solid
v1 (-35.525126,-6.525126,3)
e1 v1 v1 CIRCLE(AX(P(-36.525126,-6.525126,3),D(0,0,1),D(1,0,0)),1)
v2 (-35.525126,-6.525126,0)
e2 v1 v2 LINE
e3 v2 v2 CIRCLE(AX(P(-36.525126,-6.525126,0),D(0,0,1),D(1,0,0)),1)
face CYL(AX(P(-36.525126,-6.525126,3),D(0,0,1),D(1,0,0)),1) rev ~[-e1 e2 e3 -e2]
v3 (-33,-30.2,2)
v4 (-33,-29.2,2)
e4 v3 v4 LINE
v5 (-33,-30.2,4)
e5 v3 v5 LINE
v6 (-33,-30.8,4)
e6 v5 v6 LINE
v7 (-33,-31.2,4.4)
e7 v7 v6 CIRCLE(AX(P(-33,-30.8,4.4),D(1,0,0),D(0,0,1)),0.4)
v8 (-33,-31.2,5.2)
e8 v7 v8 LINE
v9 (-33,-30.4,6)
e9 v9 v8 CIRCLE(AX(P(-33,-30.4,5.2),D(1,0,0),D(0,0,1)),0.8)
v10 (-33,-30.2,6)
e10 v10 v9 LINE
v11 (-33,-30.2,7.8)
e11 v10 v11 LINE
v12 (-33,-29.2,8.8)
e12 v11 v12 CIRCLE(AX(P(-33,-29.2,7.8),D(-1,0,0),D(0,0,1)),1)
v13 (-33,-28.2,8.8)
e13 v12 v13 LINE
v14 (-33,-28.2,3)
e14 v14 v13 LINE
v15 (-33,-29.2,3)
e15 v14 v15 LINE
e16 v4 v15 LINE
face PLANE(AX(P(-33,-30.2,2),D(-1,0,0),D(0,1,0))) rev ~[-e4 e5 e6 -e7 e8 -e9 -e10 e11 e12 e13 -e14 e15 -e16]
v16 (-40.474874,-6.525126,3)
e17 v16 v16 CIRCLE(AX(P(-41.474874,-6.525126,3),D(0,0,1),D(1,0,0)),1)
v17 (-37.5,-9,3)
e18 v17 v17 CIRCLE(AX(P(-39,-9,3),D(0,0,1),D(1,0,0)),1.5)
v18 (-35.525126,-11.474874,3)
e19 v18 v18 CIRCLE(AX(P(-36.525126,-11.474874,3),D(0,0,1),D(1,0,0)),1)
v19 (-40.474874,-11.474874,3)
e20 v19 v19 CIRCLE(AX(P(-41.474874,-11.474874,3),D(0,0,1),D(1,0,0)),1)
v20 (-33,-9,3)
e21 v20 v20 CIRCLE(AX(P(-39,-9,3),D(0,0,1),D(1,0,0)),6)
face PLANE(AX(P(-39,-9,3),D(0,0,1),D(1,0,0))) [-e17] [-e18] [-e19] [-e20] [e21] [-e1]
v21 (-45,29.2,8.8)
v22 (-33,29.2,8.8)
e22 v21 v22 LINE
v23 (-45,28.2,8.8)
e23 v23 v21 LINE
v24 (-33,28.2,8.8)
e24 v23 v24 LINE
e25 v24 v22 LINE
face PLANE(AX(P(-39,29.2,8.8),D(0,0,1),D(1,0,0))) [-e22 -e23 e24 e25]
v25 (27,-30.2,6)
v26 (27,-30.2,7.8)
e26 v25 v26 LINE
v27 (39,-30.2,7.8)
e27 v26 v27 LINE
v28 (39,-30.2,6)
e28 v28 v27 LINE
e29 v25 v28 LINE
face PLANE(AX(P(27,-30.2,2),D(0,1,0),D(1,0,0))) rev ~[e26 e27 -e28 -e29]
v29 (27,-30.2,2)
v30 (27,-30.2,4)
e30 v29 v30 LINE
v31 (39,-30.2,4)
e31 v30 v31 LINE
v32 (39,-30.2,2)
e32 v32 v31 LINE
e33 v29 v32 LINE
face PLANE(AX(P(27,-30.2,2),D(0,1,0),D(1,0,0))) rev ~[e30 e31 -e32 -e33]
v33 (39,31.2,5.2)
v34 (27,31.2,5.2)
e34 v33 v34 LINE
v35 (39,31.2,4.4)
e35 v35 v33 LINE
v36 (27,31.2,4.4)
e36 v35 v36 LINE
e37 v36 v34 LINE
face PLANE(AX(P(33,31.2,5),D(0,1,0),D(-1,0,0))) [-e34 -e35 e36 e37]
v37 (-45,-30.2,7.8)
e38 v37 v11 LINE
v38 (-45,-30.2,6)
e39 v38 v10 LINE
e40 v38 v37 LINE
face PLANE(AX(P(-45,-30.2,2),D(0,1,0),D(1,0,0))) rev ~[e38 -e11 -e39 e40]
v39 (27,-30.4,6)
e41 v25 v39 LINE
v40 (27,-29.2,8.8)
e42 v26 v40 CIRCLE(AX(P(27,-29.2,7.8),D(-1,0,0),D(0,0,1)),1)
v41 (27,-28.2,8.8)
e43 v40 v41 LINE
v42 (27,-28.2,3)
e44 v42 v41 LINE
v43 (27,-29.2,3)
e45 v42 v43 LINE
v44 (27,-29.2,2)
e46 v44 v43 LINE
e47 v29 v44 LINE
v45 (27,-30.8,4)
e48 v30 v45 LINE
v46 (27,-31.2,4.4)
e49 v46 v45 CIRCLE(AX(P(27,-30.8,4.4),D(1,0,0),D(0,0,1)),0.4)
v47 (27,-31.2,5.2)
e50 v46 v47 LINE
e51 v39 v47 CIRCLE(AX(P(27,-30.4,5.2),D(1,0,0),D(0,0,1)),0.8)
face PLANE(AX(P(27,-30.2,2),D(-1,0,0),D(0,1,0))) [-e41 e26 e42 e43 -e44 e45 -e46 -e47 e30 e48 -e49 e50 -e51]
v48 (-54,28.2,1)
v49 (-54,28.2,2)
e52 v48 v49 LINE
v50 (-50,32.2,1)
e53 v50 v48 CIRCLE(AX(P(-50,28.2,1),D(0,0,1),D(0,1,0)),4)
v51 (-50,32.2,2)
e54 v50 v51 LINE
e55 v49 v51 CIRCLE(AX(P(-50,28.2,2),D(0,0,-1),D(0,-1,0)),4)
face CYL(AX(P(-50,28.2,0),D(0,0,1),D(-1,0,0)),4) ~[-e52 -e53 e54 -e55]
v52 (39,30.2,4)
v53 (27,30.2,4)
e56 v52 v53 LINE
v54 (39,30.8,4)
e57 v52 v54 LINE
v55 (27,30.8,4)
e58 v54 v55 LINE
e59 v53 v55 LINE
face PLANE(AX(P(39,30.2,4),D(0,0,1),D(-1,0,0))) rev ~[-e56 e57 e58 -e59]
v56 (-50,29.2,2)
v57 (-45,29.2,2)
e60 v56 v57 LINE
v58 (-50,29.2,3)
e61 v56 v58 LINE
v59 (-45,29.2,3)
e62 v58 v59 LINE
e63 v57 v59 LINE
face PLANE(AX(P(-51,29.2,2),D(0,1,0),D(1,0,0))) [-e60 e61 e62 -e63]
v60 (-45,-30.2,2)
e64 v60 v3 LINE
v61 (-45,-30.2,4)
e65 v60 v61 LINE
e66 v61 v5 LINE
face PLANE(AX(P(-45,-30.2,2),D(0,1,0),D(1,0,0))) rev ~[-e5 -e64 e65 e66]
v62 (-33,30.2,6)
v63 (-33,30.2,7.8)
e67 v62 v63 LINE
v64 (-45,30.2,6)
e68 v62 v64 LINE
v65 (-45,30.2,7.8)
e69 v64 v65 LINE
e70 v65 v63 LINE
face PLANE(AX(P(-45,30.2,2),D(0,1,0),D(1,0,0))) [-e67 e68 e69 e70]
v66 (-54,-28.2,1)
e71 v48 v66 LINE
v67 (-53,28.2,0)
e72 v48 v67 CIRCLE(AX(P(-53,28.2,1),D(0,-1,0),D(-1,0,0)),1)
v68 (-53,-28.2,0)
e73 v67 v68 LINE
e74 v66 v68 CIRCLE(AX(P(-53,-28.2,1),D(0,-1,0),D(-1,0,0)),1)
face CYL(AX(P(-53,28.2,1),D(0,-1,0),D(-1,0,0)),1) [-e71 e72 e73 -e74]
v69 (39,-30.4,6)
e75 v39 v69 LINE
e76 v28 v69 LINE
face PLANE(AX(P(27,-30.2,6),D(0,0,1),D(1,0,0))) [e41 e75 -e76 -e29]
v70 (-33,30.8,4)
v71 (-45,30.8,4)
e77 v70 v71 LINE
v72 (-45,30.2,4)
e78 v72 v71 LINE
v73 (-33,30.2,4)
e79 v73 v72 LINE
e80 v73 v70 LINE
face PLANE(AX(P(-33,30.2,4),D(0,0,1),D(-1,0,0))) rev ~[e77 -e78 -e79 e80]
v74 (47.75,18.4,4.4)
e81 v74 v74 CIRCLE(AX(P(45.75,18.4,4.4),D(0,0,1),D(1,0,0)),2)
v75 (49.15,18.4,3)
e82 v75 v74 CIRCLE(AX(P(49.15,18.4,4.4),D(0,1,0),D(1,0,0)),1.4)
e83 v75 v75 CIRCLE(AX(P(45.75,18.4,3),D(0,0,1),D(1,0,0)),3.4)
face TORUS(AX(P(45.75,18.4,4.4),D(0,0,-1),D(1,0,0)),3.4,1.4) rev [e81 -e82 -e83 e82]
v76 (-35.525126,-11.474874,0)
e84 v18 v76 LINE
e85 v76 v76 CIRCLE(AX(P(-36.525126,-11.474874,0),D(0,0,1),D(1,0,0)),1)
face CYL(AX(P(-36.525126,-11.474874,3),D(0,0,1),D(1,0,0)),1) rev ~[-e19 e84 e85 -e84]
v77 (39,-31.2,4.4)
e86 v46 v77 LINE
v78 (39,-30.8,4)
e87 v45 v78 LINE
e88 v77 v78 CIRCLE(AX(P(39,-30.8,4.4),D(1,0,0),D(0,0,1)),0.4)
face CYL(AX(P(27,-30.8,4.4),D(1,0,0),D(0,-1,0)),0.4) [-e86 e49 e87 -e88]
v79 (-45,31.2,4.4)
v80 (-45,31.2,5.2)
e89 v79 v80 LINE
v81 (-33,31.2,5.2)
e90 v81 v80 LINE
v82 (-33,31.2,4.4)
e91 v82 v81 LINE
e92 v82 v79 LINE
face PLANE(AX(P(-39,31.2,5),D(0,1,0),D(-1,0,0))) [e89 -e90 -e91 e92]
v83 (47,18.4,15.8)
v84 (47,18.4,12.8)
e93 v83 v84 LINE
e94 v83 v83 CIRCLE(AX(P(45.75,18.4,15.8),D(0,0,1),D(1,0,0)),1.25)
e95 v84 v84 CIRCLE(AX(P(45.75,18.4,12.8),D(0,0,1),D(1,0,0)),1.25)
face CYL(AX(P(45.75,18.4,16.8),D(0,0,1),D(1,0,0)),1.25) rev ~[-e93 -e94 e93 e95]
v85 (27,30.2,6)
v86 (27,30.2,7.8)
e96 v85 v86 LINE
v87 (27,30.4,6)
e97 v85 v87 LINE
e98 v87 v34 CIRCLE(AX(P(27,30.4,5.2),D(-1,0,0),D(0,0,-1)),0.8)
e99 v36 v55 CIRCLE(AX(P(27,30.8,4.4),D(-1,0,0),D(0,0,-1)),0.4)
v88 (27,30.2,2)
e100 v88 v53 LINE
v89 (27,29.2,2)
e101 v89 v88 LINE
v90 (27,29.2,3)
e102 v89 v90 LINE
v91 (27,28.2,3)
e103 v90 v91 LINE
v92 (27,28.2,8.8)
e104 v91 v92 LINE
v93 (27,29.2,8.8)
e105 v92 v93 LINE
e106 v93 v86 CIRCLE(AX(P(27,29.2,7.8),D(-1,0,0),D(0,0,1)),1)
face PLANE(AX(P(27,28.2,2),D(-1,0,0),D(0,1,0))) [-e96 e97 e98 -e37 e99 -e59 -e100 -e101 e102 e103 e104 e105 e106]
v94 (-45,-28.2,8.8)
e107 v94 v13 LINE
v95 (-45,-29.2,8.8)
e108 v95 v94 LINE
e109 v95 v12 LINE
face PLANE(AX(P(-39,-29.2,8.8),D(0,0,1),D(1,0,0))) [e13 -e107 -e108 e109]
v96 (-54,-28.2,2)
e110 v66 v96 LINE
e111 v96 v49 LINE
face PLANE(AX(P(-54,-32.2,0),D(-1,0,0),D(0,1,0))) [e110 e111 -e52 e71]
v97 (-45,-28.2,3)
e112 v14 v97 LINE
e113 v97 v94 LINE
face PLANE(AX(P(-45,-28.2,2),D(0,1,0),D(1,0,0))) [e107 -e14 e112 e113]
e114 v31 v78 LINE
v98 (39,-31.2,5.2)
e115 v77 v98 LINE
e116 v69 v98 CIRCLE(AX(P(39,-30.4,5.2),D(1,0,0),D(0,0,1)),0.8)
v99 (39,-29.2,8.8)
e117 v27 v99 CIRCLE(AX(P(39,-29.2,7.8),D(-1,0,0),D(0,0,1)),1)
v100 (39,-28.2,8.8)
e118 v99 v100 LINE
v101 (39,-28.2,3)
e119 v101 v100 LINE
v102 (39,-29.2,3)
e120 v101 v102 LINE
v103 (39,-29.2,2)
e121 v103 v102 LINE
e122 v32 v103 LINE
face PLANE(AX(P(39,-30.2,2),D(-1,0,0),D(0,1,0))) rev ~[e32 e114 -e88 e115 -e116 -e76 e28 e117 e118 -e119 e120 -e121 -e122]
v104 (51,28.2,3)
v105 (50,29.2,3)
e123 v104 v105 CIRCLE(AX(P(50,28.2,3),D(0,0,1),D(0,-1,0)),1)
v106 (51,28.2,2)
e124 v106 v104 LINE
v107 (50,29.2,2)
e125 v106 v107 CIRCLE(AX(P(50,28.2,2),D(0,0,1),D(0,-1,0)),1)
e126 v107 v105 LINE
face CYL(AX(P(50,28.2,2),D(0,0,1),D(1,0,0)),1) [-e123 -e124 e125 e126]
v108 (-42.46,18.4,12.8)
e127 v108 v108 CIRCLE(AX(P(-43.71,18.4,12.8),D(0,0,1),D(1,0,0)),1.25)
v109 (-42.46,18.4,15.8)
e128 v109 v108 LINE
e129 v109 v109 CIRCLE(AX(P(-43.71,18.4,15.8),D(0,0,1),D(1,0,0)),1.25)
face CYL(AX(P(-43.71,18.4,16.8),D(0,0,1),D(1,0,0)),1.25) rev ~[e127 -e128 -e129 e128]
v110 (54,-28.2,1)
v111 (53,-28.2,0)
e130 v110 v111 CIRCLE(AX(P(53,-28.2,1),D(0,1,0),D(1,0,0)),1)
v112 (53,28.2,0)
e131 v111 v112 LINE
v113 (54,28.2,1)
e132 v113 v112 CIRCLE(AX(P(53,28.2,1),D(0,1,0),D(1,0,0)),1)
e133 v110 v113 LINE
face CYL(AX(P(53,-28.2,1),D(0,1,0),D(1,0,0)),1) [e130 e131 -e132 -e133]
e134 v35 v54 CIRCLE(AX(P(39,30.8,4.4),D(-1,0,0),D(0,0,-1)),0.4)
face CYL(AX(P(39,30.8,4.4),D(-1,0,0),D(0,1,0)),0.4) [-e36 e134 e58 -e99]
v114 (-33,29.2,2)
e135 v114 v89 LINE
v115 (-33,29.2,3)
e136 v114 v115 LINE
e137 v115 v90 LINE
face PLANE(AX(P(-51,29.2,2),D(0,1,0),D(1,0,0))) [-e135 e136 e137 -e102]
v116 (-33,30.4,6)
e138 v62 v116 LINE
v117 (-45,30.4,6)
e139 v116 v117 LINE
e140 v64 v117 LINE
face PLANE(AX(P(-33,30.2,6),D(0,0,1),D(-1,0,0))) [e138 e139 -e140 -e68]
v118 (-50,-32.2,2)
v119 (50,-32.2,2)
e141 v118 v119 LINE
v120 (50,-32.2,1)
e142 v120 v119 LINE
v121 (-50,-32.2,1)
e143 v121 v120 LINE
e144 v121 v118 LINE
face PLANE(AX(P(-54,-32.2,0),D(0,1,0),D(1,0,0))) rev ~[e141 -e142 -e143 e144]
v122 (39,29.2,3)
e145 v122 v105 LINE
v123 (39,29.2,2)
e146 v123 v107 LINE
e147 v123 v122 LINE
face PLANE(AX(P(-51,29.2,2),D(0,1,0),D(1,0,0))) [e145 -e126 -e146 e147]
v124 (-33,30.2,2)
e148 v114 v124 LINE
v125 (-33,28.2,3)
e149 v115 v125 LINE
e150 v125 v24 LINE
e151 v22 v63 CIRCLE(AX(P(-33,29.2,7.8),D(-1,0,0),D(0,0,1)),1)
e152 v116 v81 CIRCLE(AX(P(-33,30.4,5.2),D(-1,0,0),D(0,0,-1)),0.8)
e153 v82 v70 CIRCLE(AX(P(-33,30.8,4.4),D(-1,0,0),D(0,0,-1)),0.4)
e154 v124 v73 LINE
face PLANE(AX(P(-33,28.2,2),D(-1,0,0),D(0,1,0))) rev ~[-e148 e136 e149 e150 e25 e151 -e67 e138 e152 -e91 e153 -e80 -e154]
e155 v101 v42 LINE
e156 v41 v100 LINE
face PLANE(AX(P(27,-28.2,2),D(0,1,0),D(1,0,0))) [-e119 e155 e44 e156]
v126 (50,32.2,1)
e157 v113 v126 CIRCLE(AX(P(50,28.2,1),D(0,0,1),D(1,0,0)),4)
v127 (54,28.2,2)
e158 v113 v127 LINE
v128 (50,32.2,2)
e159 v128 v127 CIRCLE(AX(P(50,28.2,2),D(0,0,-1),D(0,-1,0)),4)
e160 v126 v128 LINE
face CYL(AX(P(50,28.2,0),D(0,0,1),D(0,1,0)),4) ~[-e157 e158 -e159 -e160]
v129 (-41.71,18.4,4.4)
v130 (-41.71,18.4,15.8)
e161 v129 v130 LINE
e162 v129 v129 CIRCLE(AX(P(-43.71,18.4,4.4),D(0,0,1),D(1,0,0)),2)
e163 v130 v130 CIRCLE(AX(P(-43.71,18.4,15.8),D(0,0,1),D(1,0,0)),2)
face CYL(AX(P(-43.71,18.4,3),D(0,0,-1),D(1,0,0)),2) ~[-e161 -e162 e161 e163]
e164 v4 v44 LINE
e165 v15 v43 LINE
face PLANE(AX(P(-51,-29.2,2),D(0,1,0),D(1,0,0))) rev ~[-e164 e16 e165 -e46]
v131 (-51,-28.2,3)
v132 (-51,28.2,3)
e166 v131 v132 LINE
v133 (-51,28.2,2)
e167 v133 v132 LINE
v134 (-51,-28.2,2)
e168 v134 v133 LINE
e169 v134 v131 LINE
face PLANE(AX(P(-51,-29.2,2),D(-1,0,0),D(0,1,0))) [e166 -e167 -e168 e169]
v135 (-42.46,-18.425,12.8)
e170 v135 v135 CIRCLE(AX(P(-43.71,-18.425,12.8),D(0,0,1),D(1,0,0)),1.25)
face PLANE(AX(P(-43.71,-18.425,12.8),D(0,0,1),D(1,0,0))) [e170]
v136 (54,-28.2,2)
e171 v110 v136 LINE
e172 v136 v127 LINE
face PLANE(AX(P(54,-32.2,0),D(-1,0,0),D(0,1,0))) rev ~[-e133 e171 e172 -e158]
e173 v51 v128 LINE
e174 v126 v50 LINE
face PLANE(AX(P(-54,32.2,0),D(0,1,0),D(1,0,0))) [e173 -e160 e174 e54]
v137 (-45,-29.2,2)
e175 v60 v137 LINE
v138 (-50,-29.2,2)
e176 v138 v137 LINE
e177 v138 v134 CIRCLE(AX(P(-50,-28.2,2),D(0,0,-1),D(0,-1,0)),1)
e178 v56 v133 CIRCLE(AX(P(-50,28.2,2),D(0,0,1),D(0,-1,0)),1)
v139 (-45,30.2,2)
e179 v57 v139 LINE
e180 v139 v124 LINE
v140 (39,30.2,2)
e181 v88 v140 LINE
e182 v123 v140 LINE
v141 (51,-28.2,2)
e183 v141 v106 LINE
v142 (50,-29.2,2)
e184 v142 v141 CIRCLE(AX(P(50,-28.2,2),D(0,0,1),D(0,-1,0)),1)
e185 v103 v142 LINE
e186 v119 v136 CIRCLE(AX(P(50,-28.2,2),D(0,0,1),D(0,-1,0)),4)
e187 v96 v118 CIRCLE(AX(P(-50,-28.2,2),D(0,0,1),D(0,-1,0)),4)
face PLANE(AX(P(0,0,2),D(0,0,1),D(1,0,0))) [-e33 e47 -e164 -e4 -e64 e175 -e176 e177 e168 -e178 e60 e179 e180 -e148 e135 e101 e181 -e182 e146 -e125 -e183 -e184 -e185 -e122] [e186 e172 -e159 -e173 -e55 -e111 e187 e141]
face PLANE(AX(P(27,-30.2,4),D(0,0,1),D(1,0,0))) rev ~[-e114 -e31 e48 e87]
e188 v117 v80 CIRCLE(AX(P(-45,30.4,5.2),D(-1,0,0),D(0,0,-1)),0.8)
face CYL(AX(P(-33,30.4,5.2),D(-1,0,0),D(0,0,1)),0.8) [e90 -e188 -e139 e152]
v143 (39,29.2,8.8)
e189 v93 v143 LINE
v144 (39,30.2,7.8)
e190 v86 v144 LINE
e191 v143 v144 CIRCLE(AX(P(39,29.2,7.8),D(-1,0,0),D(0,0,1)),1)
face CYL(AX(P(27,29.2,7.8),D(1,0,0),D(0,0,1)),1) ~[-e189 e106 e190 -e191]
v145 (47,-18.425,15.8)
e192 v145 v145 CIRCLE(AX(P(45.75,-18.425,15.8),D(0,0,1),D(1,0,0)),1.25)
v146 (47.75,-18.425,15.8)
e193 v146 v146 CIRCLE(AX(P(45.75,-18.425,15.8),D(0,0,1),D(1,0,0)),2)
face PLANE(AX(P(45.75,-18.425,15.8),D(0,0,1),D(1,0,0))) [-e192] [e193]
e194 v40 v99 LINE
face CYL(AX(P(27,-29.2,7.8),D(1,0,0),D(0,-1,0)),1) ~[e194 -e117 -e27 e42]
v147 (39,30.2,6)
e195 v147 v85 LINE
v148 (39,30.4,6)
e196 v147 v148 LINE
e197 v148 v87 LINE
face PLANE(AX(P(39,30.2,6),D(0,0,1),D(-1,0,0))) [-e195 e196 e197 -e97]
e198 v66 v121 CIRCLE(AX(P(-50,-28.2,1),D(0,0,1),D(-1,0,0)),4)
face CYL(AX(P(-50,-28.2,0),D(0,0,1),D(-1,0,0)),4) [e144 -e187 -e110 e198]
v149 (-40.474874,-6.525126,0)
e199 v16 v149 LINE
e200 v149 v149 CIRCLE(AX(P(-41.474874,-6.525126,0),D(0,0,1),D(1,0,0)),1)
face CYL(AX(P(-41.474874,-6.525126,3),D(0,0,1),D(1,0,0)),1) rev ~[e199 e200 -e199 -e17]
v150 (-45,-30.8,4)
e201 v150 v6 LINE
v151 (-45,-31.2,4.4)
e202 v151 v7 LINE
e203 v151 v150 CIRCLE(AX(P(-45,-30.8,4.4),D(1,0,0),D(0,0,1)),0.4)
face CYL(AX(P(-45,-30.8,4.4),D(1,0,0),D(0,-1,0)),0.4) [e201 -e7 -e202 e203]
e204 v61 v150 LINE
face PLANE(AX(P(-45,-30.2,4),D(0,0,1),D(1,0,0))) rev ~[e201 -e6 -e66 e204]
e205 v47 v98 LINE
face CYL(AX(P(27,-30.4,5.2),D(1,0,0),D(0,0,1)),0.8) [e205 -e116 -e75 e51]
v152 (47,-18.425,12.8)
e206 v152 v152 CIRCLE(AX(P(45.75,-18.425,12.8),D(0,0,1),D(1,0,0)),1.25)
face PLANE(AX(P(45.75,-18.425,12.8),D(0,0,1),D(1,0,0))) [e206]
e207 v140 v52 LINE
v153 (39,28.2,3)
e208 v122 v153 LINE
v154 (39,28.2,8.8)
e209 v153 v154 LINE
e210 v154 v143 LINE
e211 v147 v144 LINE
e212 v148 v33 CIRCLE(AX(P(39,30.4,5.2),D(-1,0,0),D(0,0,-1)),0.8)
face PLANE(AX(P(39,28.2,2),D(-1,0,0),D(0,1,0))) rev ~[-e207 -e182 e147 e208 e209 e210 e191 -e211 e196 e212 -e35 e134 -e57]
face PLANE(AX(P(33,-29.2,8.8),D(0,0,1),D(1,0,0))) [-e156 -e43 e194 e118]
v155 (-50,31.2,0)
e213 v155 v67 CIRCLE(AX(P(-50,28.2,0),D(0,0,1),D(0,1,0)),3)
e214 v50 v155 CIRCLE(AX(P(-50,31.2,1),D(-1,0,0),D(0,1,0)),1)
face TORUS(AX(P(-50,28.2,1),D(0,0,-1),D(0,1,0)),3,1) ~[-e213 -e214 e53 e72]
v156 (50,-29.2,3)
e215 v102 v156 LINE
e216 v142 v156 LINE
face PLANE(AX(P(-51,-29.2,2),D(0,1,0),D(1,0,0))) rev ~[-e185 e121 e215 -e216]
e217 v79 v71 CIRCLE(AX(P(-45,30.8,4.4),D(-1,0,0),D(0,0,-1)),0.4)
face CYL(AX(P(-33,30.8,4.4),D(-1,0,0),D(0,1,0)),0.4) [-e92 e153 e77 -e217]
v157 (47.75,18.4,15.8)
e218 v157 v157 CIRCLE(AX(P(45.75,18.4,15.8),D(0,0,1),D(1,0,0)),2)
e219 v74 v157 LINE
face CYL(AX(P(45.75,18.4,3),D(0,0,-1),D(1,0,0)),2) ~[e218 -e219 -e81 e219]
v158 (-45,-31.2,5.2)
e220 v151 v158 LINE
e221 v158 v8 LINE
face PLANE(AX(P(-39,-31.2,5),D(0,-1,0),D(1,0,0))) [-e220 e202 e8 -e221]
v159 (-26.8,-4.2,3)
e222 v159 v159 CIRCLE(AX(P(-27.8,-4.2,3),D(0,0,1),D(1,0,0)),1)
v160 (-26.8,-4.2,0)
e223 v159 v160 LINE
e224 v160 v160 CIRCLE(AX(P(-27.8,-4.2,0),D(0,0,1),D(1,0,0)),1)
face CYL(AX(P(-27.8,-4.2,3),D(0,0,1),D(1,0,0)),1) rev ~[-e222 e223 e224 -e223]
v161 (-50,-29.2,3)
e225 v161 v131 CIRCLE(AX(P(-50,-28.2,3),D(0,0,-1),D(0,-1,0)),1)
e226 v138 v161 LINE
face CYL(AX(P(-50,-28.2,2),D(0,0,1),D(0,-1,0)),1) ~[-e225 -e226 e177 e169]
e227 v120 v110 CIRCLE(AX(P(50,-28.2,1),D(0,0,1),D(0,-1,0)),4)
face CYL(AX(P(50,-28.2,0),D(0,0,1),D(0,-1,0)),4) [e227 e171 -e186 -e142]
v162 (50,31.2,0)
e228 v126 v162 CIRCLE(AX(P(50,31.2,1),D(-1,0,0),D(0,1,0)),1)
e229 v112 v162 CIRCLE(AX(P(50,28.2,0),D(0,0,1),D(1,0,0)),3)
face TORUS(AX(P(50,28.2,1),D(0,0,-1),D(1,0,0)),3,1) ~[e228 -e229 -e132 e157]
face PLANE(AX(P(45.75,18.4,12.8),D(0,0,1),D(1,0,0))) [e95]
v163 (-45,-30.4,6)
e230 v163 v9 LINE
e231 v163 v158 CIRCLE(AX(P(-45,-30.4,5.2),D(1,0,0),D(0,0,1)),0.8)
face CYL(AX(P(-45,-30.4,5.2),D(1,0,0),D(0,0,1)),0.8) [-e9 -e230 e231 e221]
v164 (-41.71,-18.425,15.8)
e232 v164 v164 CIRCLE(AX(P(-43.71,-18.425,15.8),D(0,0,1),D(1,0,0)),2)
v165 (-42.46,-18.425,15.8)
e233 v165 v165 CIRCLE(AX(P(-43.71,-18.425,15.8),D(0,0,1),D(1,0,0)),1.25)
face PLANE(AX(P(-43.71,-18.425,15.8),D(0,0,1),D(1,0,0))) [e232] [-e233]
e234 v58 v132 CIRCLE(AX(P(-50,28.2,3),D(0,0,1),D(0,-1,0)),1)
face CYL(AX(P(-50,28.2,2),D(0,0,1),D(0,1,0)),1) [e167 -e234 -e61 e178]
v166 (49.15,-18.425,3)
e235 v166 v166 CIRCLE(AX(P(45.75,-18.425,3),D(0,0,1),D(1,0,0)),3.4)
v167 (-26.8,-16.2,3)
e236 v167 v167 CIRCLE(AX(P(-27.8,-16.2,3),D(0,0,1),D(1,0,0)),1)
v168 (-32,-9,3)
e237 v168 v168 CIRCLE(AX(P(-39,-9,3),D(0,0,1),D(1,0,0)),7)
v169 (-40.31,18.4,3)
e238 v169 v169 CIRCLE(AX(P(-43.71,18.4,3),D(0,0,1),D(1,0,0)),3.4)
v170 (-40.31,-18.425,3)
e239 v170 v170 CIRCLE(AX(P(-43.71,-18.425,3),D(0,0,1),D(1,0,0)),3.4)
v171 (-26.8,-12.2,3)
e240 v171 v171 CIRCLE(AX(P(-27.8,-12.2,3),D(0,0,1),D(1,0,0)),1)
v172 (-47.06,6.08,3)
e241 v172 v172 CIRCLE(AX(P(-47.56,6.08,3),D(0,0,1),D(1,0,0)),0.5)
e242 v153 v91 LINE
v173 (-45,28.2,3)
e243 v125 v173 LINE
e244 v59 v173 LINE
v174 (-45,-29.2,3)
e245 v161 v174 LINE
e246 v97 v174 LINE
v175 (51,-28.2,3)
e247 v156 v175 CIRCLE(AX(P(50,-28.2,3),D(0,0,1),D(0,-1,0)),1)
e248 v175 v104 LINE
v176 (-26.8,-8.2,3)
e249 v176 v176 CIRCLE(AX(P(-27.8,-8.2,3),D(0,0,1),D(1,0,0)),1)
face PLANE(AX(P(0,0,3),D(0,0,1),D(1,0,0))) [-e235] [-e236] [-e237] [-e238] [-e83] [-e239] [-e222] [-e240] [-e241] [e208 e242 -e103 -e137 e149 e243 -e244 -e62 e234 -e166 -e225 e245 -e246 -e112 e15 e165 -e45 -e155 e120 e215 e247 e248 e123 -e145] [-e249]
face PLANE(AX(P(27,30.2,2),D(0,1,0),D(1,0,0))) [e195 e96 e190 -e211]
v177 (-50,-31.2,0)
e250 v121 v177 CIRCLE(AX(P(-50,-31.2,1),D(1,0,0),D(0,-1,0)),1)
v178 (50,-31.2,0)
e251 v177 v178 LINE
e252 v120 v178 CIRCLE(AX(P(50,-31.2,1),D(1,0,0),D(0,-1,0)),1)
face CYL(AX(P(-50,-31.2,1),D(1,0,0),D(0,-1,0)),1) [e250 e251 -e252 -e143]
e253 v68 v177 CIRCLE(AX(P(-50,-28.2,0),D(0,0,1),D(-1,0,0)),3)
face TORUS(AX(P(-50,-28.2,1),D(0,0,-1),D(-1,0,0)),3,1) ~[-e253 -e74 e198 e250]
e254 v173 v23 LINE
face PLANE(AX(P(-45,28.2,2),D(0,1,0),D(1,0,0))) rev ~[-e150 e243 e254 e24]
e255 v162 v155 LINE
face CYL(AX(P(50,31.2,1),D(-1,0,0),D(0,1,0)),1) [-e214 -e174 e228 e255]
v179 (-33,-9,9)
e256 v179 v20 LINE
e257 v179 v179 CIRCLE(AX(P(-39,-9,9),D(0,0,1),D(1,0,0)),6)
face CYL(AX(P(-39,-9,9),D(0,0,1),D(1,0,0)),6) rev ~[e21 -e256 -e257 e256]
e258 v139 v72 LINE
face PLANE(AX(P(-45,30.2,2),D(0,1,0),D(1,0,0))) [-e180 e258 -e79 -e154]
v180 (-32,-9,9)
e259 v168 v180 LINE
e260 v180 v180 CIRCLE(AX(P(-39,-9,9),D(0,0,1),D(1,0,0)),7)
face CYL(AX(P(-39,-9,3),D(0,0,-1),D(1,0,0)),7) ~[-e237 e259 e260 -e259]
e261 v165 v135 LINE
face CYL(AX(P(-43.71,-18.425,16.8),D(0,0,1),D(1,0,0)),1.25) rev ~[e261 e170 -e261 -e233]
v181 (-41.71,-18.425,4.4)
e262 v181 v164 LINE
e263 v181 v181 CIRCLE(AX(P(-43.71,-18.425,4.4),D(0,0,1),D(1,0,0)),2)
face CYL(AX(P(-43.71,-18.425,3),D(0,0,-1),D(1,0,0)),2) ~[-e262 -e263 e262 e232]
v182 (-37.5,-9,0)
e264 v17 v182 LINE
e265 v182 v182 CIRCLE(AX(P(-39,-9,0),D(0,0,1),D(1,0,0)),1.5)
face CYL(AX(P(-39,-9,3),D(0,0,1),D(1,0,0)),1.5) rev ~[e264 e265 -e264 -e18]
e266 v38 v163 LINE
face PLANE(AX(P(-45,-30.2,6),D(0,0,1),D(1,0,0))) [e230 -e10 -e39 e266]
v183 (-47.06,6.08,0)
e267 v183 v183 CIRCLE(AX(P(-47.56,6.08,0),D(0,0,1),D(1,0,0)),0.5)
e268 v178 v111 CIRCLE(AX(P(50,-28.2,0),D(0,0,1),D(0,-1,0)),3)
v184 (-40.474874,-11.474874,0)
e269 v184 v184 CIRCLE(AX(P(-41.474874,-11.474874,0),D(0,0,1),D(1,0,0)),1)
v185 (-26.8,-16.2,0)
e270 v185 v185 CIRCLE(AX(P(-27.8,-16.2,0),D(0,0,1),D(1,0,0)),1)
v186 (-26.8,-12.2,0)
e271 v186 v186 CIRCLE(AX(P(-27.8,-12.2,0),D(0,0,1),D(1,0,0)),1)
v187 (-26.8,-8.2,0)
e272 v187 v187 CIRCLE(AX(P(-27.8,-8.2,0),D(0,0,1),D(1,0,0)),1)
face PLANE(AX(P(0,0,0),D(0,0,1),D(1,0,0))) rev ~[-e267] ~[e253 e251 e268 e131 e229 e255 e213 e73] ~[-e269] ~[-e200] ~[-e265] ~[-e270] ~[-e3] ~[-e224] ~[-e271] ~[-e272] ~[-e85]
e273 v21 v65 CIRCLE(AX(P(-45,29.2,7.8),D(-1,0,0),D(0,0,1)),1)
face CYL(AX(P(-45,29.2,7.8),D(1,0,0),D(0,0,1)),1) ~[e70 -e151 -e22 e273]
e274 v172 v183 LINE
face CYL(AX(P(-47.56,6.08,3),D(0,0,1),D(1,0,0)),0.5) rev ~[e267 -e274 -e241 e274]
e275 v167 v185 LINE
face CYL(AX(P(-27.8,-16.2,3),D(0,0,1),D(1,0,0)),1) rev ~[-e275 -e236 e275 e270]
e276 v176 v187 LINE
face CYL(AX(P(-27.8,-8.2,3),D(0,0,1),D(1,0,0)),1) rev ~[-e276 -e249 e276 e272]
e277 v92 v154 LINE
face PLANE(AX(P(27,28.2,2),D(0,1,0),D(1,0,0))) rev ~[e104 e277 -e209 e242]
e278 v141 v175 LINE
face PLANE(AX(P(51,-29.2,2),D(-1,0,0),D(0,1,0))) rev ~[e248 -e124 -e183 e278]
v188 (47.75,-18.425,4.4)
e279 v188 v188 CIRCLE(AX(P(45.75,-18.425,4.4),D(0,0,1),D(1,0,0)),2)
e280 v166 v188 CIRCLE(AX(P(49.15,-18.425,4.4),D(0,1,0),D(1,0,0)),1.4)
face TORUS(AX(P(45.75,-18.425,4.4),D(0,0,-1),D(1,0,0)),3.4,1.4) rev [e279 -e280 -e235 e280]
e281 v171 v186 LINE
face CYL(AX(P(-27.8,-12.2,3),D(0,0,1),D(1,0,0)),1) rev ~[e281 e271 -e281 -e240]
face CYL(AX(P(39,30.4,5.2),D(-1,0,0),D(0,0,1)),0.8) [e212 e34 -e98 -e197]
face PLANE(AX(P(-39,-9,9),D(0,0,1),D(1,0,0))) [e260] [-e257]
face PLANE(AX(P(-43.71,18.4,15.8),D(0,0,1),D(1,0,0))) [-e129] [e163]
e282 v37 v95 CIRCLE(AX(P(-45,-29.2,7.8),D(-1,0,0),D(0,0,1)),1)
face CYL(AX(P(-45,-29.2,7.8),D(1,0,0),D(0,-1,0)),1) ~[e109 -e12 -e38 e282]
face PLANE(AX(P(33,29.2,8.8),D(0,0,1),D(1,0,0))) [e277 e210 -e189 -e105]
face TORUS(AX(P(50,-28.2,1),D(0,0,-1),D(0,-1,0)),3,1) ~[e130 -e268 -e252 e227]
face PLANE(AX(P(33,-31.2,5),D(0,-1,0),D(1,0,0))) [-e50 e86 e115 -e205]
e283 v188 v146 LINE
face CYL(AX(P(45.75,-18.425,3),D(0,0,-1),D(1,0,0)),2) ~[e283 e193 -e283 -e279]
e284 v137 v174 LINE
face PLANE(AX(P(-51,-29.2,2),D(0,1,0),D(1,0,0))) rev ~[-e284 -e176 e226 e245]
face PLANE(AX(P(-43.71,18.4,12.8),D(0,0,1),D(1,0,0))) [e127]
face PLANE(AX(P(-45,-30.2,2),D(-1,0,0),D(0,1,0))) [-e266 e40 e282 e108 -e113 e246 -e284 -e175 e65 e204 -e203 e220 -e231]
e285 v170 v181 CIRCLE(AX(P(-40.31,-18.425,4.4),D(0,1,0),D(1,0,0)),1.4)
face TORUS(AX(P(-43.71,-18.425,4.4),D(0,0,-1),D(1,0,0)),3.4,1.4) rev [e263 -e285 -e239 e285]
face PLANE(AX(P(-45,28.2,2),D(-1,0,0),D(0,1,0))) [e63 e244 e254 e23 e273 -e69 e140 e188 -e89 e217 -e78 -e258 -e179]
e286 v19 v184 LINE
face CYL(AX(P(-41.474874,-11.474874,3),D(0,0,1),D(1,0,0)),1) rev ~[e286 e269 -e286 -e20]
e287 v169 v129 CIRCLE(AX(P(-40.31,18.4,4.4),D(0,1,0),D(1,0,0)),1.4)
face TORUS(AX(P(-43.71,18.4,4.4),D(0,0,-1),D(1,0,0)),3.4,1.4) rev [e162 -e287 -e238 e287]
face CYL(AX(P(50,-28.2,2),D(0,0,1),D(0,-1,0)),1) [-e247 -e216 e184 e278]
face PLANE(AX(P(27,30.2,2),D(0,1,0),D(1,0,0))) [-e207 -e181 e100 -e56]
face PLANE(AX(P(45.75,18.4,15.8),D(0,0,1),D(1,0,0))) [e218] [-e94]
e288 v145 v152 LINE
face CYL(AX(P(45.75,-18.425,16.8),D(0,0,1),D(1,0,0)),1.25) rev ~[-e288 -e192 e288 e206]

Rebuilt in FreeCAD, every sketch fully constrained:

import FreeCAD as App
import Part
import Sketcher
from FreeCAD import Vector
Q = App.Units.Quantity


def edges_at(feature, points):
    """Names of the edges that pass closest to the given points."""
    edges = feature.Shape.Edges
    near = lambda p: min(range(len(edges)), key=lambda i: edges[i].distToShape(Part.Vertex(*p))[0])
    return sorted({f"Edge{near(p) + 1}" for p in points})

doc = App.newDocument("Part")
params = doc.addObject("Spreadsheet::Sheet", "Params")
for row, (alias, value) in enumerate([
    ("sketch1_width", "108 mm"),
    ("sketch1_height", "64.4 mm"),
    ("pad1_length", "2 mm"),
    ("sketch2_width", "102 mm"),
    ("sketch2_height", "58.4 mm"),
    ("pad2_length", "1 mm"),
    ("sketch3_diameter", "4 mm"),
    ("pad3_length", "12.8 mm"),
    ("sketch4_diameter", "2.5 mm"),
    ("pocket1_length", "4 mm"),
    ("sketch5_width", "12 mm"),
    ("sketch5_height", "2 mm"),
    ("pad4_length", "6.8 mm"),
    ("sketch6_width", "12 mm"),
    ("sketch6_height", "2 mm"),
    ("pad5_length", "1 mm"),
    ("sketch7_width", "12 mm"),
    ("sketch7_height", "2 mm"),
    ("pad6_length", "1 mm"),
    ("fillet_radius", "4 mm"),
    ("fillet2_radius", "1 mm"),
    ("fillet3_radius", "1 mm"),
    ("fillet4_radius", "0.8 mm"),
    ("fillet5_radius", "0.4 mm"),
    ("fillet6_radius", "1 mm"),
    ("sketch8_diameter", "3 mm"),
    ("sketch8_diameter2", "2 mm"),
    ("sketch8_diameter3", "1 mm"),
    ("sketch9_diameter", "14 mm"),
    ("pad7_length", "6 mm"),
    ("sketch10_diameter", "12 mm"),
    ("pocket3_length", "6 mm"),
    ("fillet7_radius", "1.4 mm"),
], start=1):
    params.set(f"A{row}", alias)
    params.set(f"B{row}", "=" + value)
    params.setAlias(f"B{row}", alias)

body = doc.addObject("PartDesign::Body", "Body")

# Sketch on XY plane
sketch1 = doc.addObject("Sketcher::SketchObject", "Sketch")
body.addObject(sketch1)
sketch1.AttachmentSupport = (doc.XY_Plane, [""])
sketch1.MapMode = "FlatFace"
sketch1.addGeometry([
    Part.LineSegment(Vector(-54, 32, 0), Vector(-54, -32, 0)),
    Part.LineSegment(Vector(-54, -32, 0), Vector(54, -32, 0)),
    Part.LineSegment(Vector(54, -32, 0), Vector(54, 32, 0)),
    Part.LineSegment(Vector(54, 32, 0), Vector(-54, 32, 0)),
], False)
sketch1.addConstraint([
    Sketcher.Constraint("Coincident", 0, 2, 1, 1),
    Sketcher.Constraint("Coincident", 1, 2, 2, 1),
    Sketcher.Constraint("Coincident", 2, 2, 3, 1),
    Sketcher.Constraint("Coincident", 3, 2, 0, 1),
    Sketcher.Constraint("Vertical", 0),
    Sketcher.Constraint("Horizontal", 1),
    Sketcher.Constraint("Vertical", 2),
    Sketcher.Constraint("Horizontal", 3),
    Sketcher.Constraint("Symmetric", 0, 2, 2, 2, -1, 1),
    Sketcher.Constraint("DistanceX", 1, 1, 1, 2, Q("108 mm")),
    Sketcher.Constraint("DistanceY", 0, 2, 0, 1, Q("64.4 mm")),
])
sketch1.setExpression("Constraints[9]", "Params.sketch1_width")
sketch1.setExpression("Constraints[10]", "Params.sketch1_height")
pad1 = doc.addObject("PartDesign::Pad", "Pad")
body.addObject(pad1)
pad1.Profile = sketch1
pad1.setExpression("Length", "Params.pad1_length")

# Sketch on XY plane
sketch2 = doc.addObject("Sketcher::SketchObject", "Sketch001")
body.addObject(sketch2)
sketch2.AttachmentSupport = (doc.XY_Plane, [""])
sketch2.MapMode = "FlatFace"
sketch2.AttachmentOffset = App.Placement(Vector(0, 0, 2), App.Rotation())
sketch2.addGeometry([
    Part.LineSegment(Vector(-51, 29, 0), Vector(-51, -29, 0)),
    Part.LineSegment(Vector(-51, -29, 0), Vector(51, -29, 0)),
    Part.LineSegment(Vector(51, -29, 0), Vector(51, 29, 0)),
    Part.LineSegment(Vector(51, 29, 0), Vector(-51, 29, 0)),
], False)
sketch2.addConstraint([
    Sketcher.Constraint("Coincident", 0, 2, 1, 1),
    Sketcher.Constraint("Coincident", 1, 2, 2, 1),
    Sketcher.Constraint("Coincident", 2, 2, 3, 1),
    Sketcher.Constraint("Coincident", 3, 2, 0, 1),
    Sketcher.Constraint("Vertical", 0),
    Sketcher.Constraint("Horizontal", 1),
    Sketcher.Constraint("Vertical", 2),
    Sketcher.Constraint("Horizontal", 3),
    Sketcher.Constraint("Symmetric", 0, 2, 2, 2, -1, 1),
    Sketcher.Constraint("DistanceX", 1, 1, 1, 2, Q("102 mm")),
    Sketcher.Constraint("DistanceY", 0, 2, 0, 1, Q("58.4 mm")),
])
sketch2.setExpression("Constraints[9]", "Params.sketch2_width")
sketch2.setExpression("Constraints[10]", "Params.sketch2_height")
pad2 = doc.addObject("PartDesign::Pad", "Pad001")
body.addObject(pad2)
pad2.Profile = sketch2
pad2.setExpression("Length", "Params.pad2_length")

# Sketch on XY plane
sketch3 = doc.addObject("Sketcher::SketchObject", "Sketch002")
body.addObject(sketch3)
sketch3.AttachmentSupport = (doc.XY_Plane, [""])
sketch3.MapMode = "FlatFace"
sketch3.AttachmentOffset = App.Placement(Vector(0, 0, 3), App.Rotation())
sketch3.addGeometry([
    Part.Circle(Vector(-43.7, 18.4, 0), Vector(0, 0, 1), 2),
    Part.Circle(Vector(45.8, 18.4, 0), Vector(0, 0, 1), 2),
    Part.Circle(Vector(-43.7, -18.4, 0), Vector(0, 0, 1), 2),
    Part.Circle(Vector(45.8, -18.4, 0), Vector(0, 0, 1), 2),
], False)
sketch3.addConstraint([
    Sketcher.Constraint("Equal", 0, 1),
    Sketcher.Constraint("Equal", 1, 2),
    Sketcher.Constraint("Equal", 2, 3),
    Sketcher.Constraint("Horizontal", 0, 3, 1, 3),
    Sketcher.Constraint("Horizontal", 2, 3, 3, 3),
    Sketcher.Constraint("Vertical", 0, 3, 2, 3),
    Sketcher.Constraint("Vertical", 1, 3, 3, 3),
    Sketcher.Constraint("Diameter", 0, Q("4 mm")),
    Sketcher.Constraint("DistanceY", -1, 1, 0, 3, Q("18.4 mm")),
    Sketcher.Constraint("DistanceX", 0, 3, -1, 1, Q("43.71 mm")),
    Sketcher.Constraint("DistanceX", -1, 1, 1, 3, Q("45.75 mm")),
    Sketcher.Constraint("DistanceY", 2, 3, -1, 1, Q("18.425 mm")),
])
sketch3.setExpression("Constraints[7]", "Params.sketch3_diameter")
pad3 = doc.addObject("PartDesign::Pad", "Pad002")
body.addObject(pad3)
pad3.Profile = sketch3
pad3.setExpression("Length", "Params.pad3_length")

# Sketch on XY plane
sketch4 = doc.addObject("Sketcher::SketchObject", "Sketch003")
body.addObject(sketch4)
sketch4.AttachmentSupport = (doc.XY_Plane, [""])
sketch4.MapMode = "FlatFace"
sketch4.AttachmentOffset = App.Placement(Vector(0, 0, 16.8), App.Rotation())
sketch4.addGeometry([
    Part.Circle(Vector(-43.7, 18.4, 0), Vector(0, 0, 1), 1.2),
    Part.Circle(Vector(45.8, 18.4, 0), Vector(0, 0, 1), 1.2),
    Part.Circle(Vector(45.8, -18.4, 0), Vector(0, 0, 1), 1.2),
    Part.Circle(Vector(-43.7, -18.4, 0), Vector(0, 0, 1), 1.2),
], False)
sketch4.addConstraint([
    Sketcher.Constraint("Equal", 0, 1),
    Sketcher.Constraint("Equal", 1, 2),
    Sketcher.Constraint("Equal", 2, 3),
    Sketcher.Constraint("Horizontal", 0, 3, 1, 3),
    Sketcher.Constraint("Horizontal", 2, 3, 3, 3),
    Sketcher.Constraint("Vertical", 1, 3, 2, 3),
    Sketcher.Constraint("Vertical", 0, 3, 3, 3),
    Sketcher.Constraint("Diameter", 0, Q("2.5 mm")),
    Sketcher.Constraint("DistanceY", -1, 1, 0, 3, Q("18.4 mm")),
    Sketcher.Constraint("DistanceX", 0, 3, -1, 1, Q("43.71 mm")),
    Sketcher.Constraint("DistanceX", -1, 1, 1, 3, Q("45.75 mm")),
    Sketcher.Constraint("DistanceY", 2, 3, -1, 1, Q("18.425 mm")),
])
sketch4.setExpression("Constraints[7]", "Params.sketch4_diameter")
pocket1 = doc.addObject("PartDesign::Pocket", "Pocket")
body.addObject(pocket1)
pocket1.Profile = sketch4
pocket1.setExpression("Length", "Params.pocket1_length")

# Sketch on XY plane
sketch5 = doc.addObject("Sketcher::SketchObject", "Sketch004")
body.addObject(sketch5)
sketch5.AttachmentSupport = (doc.XY_Plane, [""])
sketch5.MapMode = "FlatFace"
sketch5.AttachmentOffset = App.Placement(Vector(0, 0, 2), App.Rotation())
sketch5.addGeometry([
    Part.LineSegment(Vector(-45, 30.2, 0), Vector(-45, 28.2, 0)),  # 0
    Part.LineSegment(Vector(-45, 28.2, 0), Vector(-33, 28.2, 0)),  # 1
    Part.LineSegment(Vector(-33, 28.2, 0), Vector(-33, 30.2, 0)),  # 2
    Part.LineSegment(Vector(-33, 30.2, 0), Vector(-45, 30.2, 0)),  # 3
    Part.LineSegment(Vector(27, 30.2, 0), Vector(27, 28.2, 0)),  # 4
    Part.LineSegment(Vector(27, 28.2, 0), Vector(39, 28.2, 0)),  # 5
    Part.LineSegment(Vector(39, 28.2, 0), Vector(39, 30.2, 0)),  # 6
    Part.LineSegment(Vector(39, 30.2, 0), Vector(27, 30.2, 0)),  # 7
    Part.LineSegment(Vector(-45, -28.2, 0), Vector(-45, -30.2, 0)),  # 8
    Part.LineSegment(Vector(-45, -30.2, 0), Vector(-33, -30.2, 0)),  # 9
    Part.LineSegment(Vector(-33, -30.2, 0), Vector(-33, -28.2, 0)),  # 10
    Part.LineSegment(Vector(-33, -28.2, 0), Vector(-45, -28.2, 0)),  # 11
    Part.LineSegment(Vector(27, -28.2, 0), Vector(27, -30.2, 0)),  # 12
    Part.LineSegment(Vector(27, -30.2, 0), Vector(39, -30.2, 0)),  # 13
    Part.LineSegment(Vector(39, -30.2, 0), Vector(39, -28.2, 0)),  # 14
    Part.LineSegment(Vector(39, -28.2, 0), Vector(27, -28.2, 0)),  # 15
], False)
sketch5.addConstraint([
    Sketcher.Constraint("Coincident", 0, 2, 1, 1),
    Sketcher.Constraint("Coincident", 1, 2, 2, 1),
    Sketcher.Constraint("Coincident", 2, 2, 3, 1),
    Sketcher.Constraint("Coincident", 3, 2, 0, 1),
    Sketcher.Constraint("Coincident", 4, 2, 5, 1),
    Sketcher.Constraint("Coincident", 5, 2, 6, 1),
    Sketcher.Constraint("Coincident", 6, 2, 7, 1),
    Sketcher.Constraint("Coincident", 7, 2, 4, 1),
    Sketcher.Constraint("Coincident", 8, 2, 9, 1),
    Sketcher.Constraint("Coincident", 9, 2, 10, 1),
    Sketcher.Constraint("Coincident", 10, 2, 11, 1),
    Sketcher.Constraint("Coincident", 11, 2, 8, 1),
    Sketcher.Constraint("Coincident", 12, 2, 13, 1),
    Sketcher.Constraint("Coincident", 13, 2, 14, 1),
    Sketcher.Constraint("Coincident", 14, 2, 15, 1),
    Sketcher.Constraint("Coincident", 15, 2, 12, 1),
    Sketcher.Constraint("Vertical", 0),
    Sketcher.Constraint("Horizontal", 1),
    Sketcher.Constraint("Vertical", 2),
    Sketcher.Constraint("Horizontal", 3),
    Sketcher.Constraint("Vertical", 4),
    Sketcher.Constraint("Horizontal", 5),
    Sketcher.Constraint("Vertical", 6),
    Sketcher.Constraint("Horizontal", 7),
    Sketcher.Constraint("Vertical", 8),
    Sketcher.Constraint("Horizontal", 9),
    Sketcher.Constraint("Vertical", 10),
    Sketcher.Constraint("Horizontal", 11),
    Sketcher.Constraint("Vertical", 12),
    Sketcher.Constraint("Horizontal", 13),
    Sketcher.Constraint("Vertical", 14),
    Sketcher.Constraint("Horizontal", 15),
    Sketcher.Constraint("Symmetric", 3, 2, 8, 2, -1),
    Sketcher.Constraint("Symmetric", 1, 2, 10, 2, -1),
    Sketcher.Constraint("Symmetric", 7, 2, 12, 2, -1),
    Sketcher.Constraint("Symmetric", 5, 2, 14, 2, -1),
    Sketcher.Constraint("Horizontal", 1, 2, 4, 2),
    Sketcher.Constraint("Horizontal", 3, 2, 6, 2),
    Sketcher.Constraint("Equal", 3, 5),
    Sketcher.Constraint("DistanceX", 1, 1, 1, 2, Q("12 mm")),
    Sketcher.Constraint("DistanceY", 0, 2, 0, 1, Q("2 mm")),
    Sketcher.Constraint("DistanceX", 0, 2, -1, 1, Q("45 mm")),
    Sketcher.Constraint("DistanceX", -1, 1, 4, 2, Q("27 mm")),
    Sketcher.Constraint("DistanceY", -1, 1, 0, 2, Q("28.2 mm")),
])
sketch5.setExpression("Constraints[39]", "Params.sketch5_width")
sketch5.setExpression("Constraints[40]", "Params.sketch5_height")
pad4 = doc.addObject("PartDesign::Pad", "Pad003")
body.addObject(pad4)
pad4.Profile = sketch5
pad4.setExpression("Length", "Params.pad4_length")

# Sketch on XZ plane
sketch6 = doc.addObject("Sketcher::SketchObject", "Sketch005")
body.addObject(sketch6)
sketch6.AttachmentSupport = (doc.XZ_Plane, [""])
sketch6.MapMode = "FlatFace"
sketch6.AttachmentOffset = App.Placement(Vector(0, 0, 30.2), App.Rotation())
sketch6.addGeometry([
    Part.LineSegment(Vector(27, 6, 0), Vector(27, 4, 0)),  # 0
    Part.LineSegment(Vector(27, 4, 0), Vector(39, 4, 0)),  # 1
    Part.LineSegment(Vector(39, 4, 0), Vector(39, 6, 0)),  # 2
    Part.LineSegment(Vector(39, 6, 0), Vector(27, 6, 0)),  # 3
    Part.LineSegment(Vector(-45, 6, 0), Vector(-45, 4, 0)),  # 4
    Part.LineSegment(Vector(-45, 4, 0), Vector(-33, 4, 0)),  # 5
    Part.LineSegment(Vector(-33, 4, 0), Vector(-33, 6, 0)),  # 6
    Part.LineSegment(Vector(-33, 6, 0), Vector(-45, 6, 0)),  # 7
], False)
sketch6.addConstraint([
    Sketcher.Constraint("Coincident", 0, 2, 1, 1),
    Sketcher.Constraint("Coincident", 1, 2, 2, 1),
    Sketcher.Constraint("Coincident", 2, 2, 3, 1),
    Sketcher.Constraint("Coincident", 3, 2, 0, 1),
    Sketcher.Constraint("Coincident", 4, 2, 5, 1),
    Sketcher.Constraint("Coincident", 5, 2, 6, 1),
    Sketcher.Constraint("Coincident", 6, 2, 7, 1),
    Sketcher.Constraint("Coincident", 7, 2, 4, 1),
    Sketcher.Constraint("Vertical", 0),
    Sketcher.Constraint("Horizontal", 1),
    Sketcher.Constraint("Vertical", 2),
    Sketcher.Constraint("Horizontal", 3),
    Sketcher.Constraint("Vertical", 4),
    Sketcher.Constraint("Horizontal", 5),
    Sketcher.Constraint("Vertical", 6),
    Sketcher.Constraint("Horizontal", 7),
    Sketcher.Constraint("Horizontal", 1, 2, 4, 2),
    Sketcher.Constraint("Horizontal", 3, 2, 6, 2),
    Sketcher.Constraint("Equal", 3, 5),
    Sketcher.Constraint("DistanceX", 1, 1, 1, 2, Q("12 mm")),
    Sketcher.Constraint("DistanceY", 0, 2, 0, 1, Q("2 mm")),
    Sketcher.Constraint("DistanceX", -1, 1, 0, 2, Q("27 mm")),
    Sketcher.Constraint("DistanceY", -1, 1, 0, 2, Q("4 mm")),
    Sketcher.Constraint("DistanceX", 4, 2, -1, 1, Q("45 mm")),
])
sketch6.setExpression("Constraints[19]", "Params.sketch6_width")
sketch6.setExpression("Constraints[20]", "Params.sketch6_height")
pad5 = doc.addObject("PartDesign::Pad", "Pad004")
body.addObject(pad5)
pad5.Profile = sketch6
pad5.setExpression("Length", "Params.pad5_length")

# Sketch on XZ plane
sketch7 = doc.addObject("Sketcher::SketchObject", "Sketch006")
body.addObject(sketch7)
sketch7.AttachmentSupport = (doc.XZ_Plane, [""])
sketch7.MapMode = "FlatFace"
sketch7.AttachmentOffset = App.Placement(Vector(0, 0, -30.2), App.Rotation())
sketch7.addGeometry([
    Part.LineSegment(Vector(39, 6, 0), Vector(39, 4, 0)),  # 0
    Part.LineSegment(Vector(39, 4, 0), Vector(27, 4, 0)),  # 1
    Part.LineSegment(Vector(27, 4, 0), Vector(27, 6, 0)),  # 2
    Part.LineSegment(Vector(27, 6, 0), Vector(39, 6, 0)),  # 3
    Part.LineSegment(Vector(-33, 6, 0), Vector(-33, 4, 0)),  # 4
    Part.LineSegment(Vector(-33, 4, 0), Vector(-45, 4, 0)),  # 5
    Part.LineSegment(Vector(-45, 4, 0), Vector(-45, 6, 0)),  # 6
    Part.LineSegment(Vector(-45, 6, 0), Vector(-33, 6, 0)),  # 7
], False)
sketch7.addConstraint([
    Sketcher.Constraint("Coincident", 0, 2, 1, 1),
    Sketcher.Constraint("Coincident", 1, 2, 2, 1),
    Sketcher.Constraint("Coincident", 2, 2, 3, 1),
    Sketcher.Constraint("Coincident", 3, 2, 0, 1),
    Sketcher.Constraint("Coincident", 4, 2, 5, 1),
    Sketcher.Constraint("Coincident", 5, 2, 6, 1),
    Sketcher.Constraint("Coincident", 6, 2, 7, 1),
    Sketcher.Constraint("Coincident", 7, 2, 4, 1),
    Sketcher.Constraint("Vertical", 0),
    Sketcher.Constraint("Horizontal", 1),
    Sketcher.Constraint("Vertical", 2),
    Sketcher.Constraint("Horizontal", 3),
    Sketcher.Constraint("Vertical", 4),
    Sketcher.Constraint("Horizontal", 5),
    Sketcher.Constraint("Vertical", 6),
    Sketcher.Constraint("Horizontal", 7),
    Sketcher.Constraint("Horizontal", 1, 2, 4, 2),
    Sketcher.Constraint("Horizontal", 3, 2, 6, 2),
    Sketcher.Constraint("Equal", 3, 5),
    Sketcher.Constraint("DistanceX", 1, 2, 1, 1, Q("12 mm")),
    Sketcher.Constraint("DistanceY", 0, 2, 0, 1, Q("2 mm")),
    Sketcher.Constraint("DistanceX", -1, 1, 0, 2, Q("39 mm")),
    Sketcher.Constraint("DistanceY", -1, 1, 0, 2, Q("4 mm")),
    Sketcher.Constraint("DistanceX", 4, 2, -1, 1, Q("33 mm")),
])
sketch7.setExpression("Constraints[19]", "Params.sketch7_width")
sketch7.setExpression("Constraints[20]", "Params.sketch7_height")
pad6 = doc.addObject("PartDesign::Pad", "Pad005")
body.addObject(pad6)
pad6.Profile = sketch7
pad6.setExpression("Length", "Params.pad6_length")
pad6.Reversed = True
doc.recompute()

fillet = doc.addObject("PartDesign::Fillet", "Fillet")
body.addObject(fillet)
fillet.Base = (pad6, edges_at(pad6, [
    (-54, 32.2, 1),
    (54, 32.2, 1),
    (-54, -32.2, 1),
    (54, -32.2, 1),
]))
fillet.setExpression("Radius", "Params.fillet_radius")
doc.recompute()

fillet2 = doc.addObject("PartDesign::Fillet", "Fillet001")
body.addObject(fillet2)
fillet2.Base = (fillet, edges_at(fillet, [
    (-51, 29.2, 2.5),
    (-51, -29.2, 2.5),
    (51, -29.2, 2.5),
    (51, 29.2, 2.5),
]))
fillet2.setExpression("Radius", "Params.fillet2_radius")
doc.recompute()

fillet3 = doc.addObject("PartDesign::Fillet", "Fillet002")
body.addObject(fillet3)
fillet3.Base = (fillet2, edges_at(fillet2, [
    (-39, -30.2, 8.8),
    (33, -30.2, 8.8),
    (33, 30.2, 8.8),
    (-39, 30.2, 8.8),
]))
fillet3.setExpression("Radius", "Params.fillet3_radius")
doc.recompute()

fillet4 = doc.addObject("PartDesign::Fillet", "Fillet003")
body.addObject(fillet4)
fillet4.Base = (fillet3, edges_at(fillet3, [
    (-39, 31.2, 6),
    (33, 31.2, 6),
    (-39, -31.2, 6),
    (33, -31.2, 6),
]))
fillet4.setExpression("Radius", "Params.fillet4_radius")
doc.recompute()

fillet5 = doc.addObject("PartDesign::Fillet", "Fillet004")
body.addObject(fillet5)
fillet5.Base = (fillet4, edges_at(fillet4, [
    (33, -31.2, 4),
    (-39, -31.2, 4),
    (-39, 31.2, 4),
    (33, 31.2, 4),
]))
fillet5.setExpression("Radius", "Params.fillet5_radius")
doc.recompute()

fillet6 = doc.addObject("PartDesign::Fillet", "Fillet005")
body.addObject(fillet6)
fillet6.Base = (fillet5, edges_at(fillet5, [(0, -32.2, 0)]))
fillet6.setExpression("Radius", "Params.fillet6_radius")

# Sketch on XY plane
sketch8 = doc.addObject("Sketcher::SketchObject", "Sketch007")
body.addObject(sketch8)
sketch8.AttachmentSupport = (doc.XY_Plane, [""])
sketch8.MapMode = "FlatFace"
sketch8.AttachmentOffset = App.Placement(Vector(0, 0, 3), App.Rotation())
sketch8.addGeometry([
    Part.Circle(Vector(-39, -9, 0), Vector(0, 0, 1), 1.5),  # 0
    Part.Circle(Vector(-27.8, -4.2, 0), Vector(0, 0, 1), 1),  # 1
    Part.Circle(Vector(-27.8, -8.2, 0), Vector(0, 0, 1), 1),  # 2
    Part.Circle(Vector(-27.8, -12.2, 0), Vector(0, 0, 1), 1),  # 3
    Part.Circle(Vector(-27.8, -16.2, 0), Vector(0, 0, 1), 1),  # 4
    Part.Circle(Vector(-47.6, 6.1, 0), Vector(0, 0, 1), 0.5),  # 5
    Part.Circle(Vector(-41.5, -6.5, 0), Vector(0, 0, 1), 1),  # 6
    Part.Circle(Vector(-36.5, -6.5, 0), Vector(0, 0, 1), 1),  # 7
    Part.Circle(Vector(-36.5, -11.5, 0), Vector(0, 0, 1), 1),  # 8
    Part.Circle(Vector(-41.5, -11.5, 0), Vector(0, 0, 1), 1),  # 9
], False)
sketch8.addConstraint([
    Sketcher.Constraint("Equal", 1, 2),
    Sketcher.Constraint("Equal", 2, 3),
    Sketcher.Constraint("Equal", 3, 4),
    Sketcher.Constraint("Equal", 4, 6),
    Sketcher.Constraint("Equal", 6, 7),
    Sketcher.Constraint("Equal", 7, 8),
    Sketcher.Constraint("Equal", 8, 9),
    Sketcher.Constraint("Horizontal", 6, 3, 7, 3),
    Sketcher.Constraint("Horizontal", 8, 3, 9, 3),
    Sketcher.Constraint("Vertical", 1, 3, 2, 3),
    Sketcher.Constraint("Vertical", 2, 3, 3, 3),
    Sketcher.Constraint("Vertical", 3, 3, 4, 3),
    Sketcher.Constraint("Vertical", 7, 3, 8, 3),
    Sketcher.Constraint("Vertical", 6, 3, 9, 3),
    Sketcher.Constraint("Diameter", 0, Q("3 mm")),
    Sketcher.Constraint("Diameter", 1, Q("2 mm")),
    Sketcher.Constraint("Diameter", 5, Q("1 mm")),
    Sketcher.Constraint("DistanceX", 0, 3, -1, 1, Q("39 mm")),
    Sketcher.Constraint("DistanceY", 0, 3, -1, 1, Q("9 mm")),
    Sketcher.Constraint("DistanceY", 2, 3, 1, 3, Q("4 mm")),
    Sketcher.Constraint("DistanceY", 3, 3, 2, 3, Q("4 mm")),
    Sketcher.Constraint("DistanceY", 4, 3, 3, 3, Q("4 mm")),
    Sketcher.Constraint("DistanceX", 1, 3, -1, 1, Q("27.8 mm")),
    Sketcher.Constraint("DistanceY", 1, 3, -1, 1, Q("4.2 mm")),
    Sketcher.Constraint("DistanceX", 5, 3, -1, 1, Q("47.56 mm")),
    Sketcher.Constraint("DistanceY", -1, 1, 5, 3, Q("6.08 mm")),
    Sketcher.Constraint("DistanceX", 6, 3, -1, 1, Q("41.474874 mm")),
    Sketcher.Constraint("DistanceY", 6, 3, -1, 1, Q("6.525126 mm")),
    Sketcher.Constraint("DistanceX", 7, 3, -1, 1, Q("36.525126 mm")),
    Sketcher.Constraint("DistanceY", 8, 3, -1, 1, Q("11.474874 mm")),
])
sketch8.setExpression("Constraints[14]", "Params.sketch8_diameter")
sketch8.setExpression("Constraints[15]", "Params.sketch8_diameter2")
sketch8.setExpression("Constraints[16]", "Params.sketch8_diameter3")
pocket2 = doc.addObject("PartDesign::Pocket", "Pocket001")
body.addObject(pocket2)
pocket2.Profile = sketch8
pocket2.Type = "ThroughAll"

# Sketch on XY plane
sketch9 = doc.addObject("Sketcher::SketchObject", "Sketch008")
body.addObject(sketch9)
sketch9.AttachmentSupport = (doc.XY_Plane, [""])
sketch9.MapMode = "FlatFace"
sketch9.AttachmentOffset = App.Placement(Vector(0, 0, 3), App.Rotation())
sketch9.addGeometry(Part.Circle(Vector(-39, -9, 0), Vector(0, 0, 1), 7), False)
sketch9.addConstraint([
    Sketcher.Constraint("Diameter", 0, Q("14 mm")),
    Sketcher.Constraint("DistanceX", 0, 3, -1, 1, Q("39 mm")),
    Sketcher.Constraint("DistanceY", 0, 3, -1, 1, Q("9 mm")),
])
sketch9.setExpression("Constraints[0]", "Params.sketch9_diameter")
pad7 = doc.addObject("PartDesign::Pad", "Pad006")
body.addObject(pad7)
pad7.Profile = sketch9
pad7.setExpression("Length", "Params.pad7_length")

# Sketch on XY plane
sketch10 = doc.addObject("Sketcher::SketchObject", "Sketch009")
body.addObject(sketch10)
sketch10.AttachmentSupport = (doc.XY_Plane, [""])
sketch10.MapMode = "FlatFace"
sketch10.AttachmentOffset = App.Placement(Vector(0, 0, 9), App.Rotation())
sketch10.addGeometry(Part.Circle(Vector(-39, -9, 0), Vector(0, 0, 1), 6), False)
sketch10.addConstraint([
    Sketcher.Constraint("Diameter", 0, Q("12 mm")),
    Sketcher.Constraint("DistanceX", 0, 3, -1, 1, Q("39 mm")),
    Sketcher.Constraint("DistanceY", 0, 3, -1, 1, Q("9 mm")),
])
sketch10.setExpression("Constraints[0]", "Params.sketch10_diameter")
pocket3 = doc.addObject("PartDesign::Pocket", "Pocket002")
body.addObject(pocket3)
pocket3.Profile = sketch10
pocket3.setExpression("Length", "Params.pocket3_length")
doc.recompute()

fillet7 = doc.addObject("PartDesign::Fillet", "Fillet006")
body.addObject(fillet7)
fillet7.Base = (pocket3, edges_at(pocket3, [
    (-45.71, -18.425, 3),
    (-45.71, 18.4, 3),
    (43.75, 18.4, 3),
    (43.75, -18.425, 3),
]))
fillet7.setExpression("Radius", "Params.fillet7_radius")

doc.recompute()
